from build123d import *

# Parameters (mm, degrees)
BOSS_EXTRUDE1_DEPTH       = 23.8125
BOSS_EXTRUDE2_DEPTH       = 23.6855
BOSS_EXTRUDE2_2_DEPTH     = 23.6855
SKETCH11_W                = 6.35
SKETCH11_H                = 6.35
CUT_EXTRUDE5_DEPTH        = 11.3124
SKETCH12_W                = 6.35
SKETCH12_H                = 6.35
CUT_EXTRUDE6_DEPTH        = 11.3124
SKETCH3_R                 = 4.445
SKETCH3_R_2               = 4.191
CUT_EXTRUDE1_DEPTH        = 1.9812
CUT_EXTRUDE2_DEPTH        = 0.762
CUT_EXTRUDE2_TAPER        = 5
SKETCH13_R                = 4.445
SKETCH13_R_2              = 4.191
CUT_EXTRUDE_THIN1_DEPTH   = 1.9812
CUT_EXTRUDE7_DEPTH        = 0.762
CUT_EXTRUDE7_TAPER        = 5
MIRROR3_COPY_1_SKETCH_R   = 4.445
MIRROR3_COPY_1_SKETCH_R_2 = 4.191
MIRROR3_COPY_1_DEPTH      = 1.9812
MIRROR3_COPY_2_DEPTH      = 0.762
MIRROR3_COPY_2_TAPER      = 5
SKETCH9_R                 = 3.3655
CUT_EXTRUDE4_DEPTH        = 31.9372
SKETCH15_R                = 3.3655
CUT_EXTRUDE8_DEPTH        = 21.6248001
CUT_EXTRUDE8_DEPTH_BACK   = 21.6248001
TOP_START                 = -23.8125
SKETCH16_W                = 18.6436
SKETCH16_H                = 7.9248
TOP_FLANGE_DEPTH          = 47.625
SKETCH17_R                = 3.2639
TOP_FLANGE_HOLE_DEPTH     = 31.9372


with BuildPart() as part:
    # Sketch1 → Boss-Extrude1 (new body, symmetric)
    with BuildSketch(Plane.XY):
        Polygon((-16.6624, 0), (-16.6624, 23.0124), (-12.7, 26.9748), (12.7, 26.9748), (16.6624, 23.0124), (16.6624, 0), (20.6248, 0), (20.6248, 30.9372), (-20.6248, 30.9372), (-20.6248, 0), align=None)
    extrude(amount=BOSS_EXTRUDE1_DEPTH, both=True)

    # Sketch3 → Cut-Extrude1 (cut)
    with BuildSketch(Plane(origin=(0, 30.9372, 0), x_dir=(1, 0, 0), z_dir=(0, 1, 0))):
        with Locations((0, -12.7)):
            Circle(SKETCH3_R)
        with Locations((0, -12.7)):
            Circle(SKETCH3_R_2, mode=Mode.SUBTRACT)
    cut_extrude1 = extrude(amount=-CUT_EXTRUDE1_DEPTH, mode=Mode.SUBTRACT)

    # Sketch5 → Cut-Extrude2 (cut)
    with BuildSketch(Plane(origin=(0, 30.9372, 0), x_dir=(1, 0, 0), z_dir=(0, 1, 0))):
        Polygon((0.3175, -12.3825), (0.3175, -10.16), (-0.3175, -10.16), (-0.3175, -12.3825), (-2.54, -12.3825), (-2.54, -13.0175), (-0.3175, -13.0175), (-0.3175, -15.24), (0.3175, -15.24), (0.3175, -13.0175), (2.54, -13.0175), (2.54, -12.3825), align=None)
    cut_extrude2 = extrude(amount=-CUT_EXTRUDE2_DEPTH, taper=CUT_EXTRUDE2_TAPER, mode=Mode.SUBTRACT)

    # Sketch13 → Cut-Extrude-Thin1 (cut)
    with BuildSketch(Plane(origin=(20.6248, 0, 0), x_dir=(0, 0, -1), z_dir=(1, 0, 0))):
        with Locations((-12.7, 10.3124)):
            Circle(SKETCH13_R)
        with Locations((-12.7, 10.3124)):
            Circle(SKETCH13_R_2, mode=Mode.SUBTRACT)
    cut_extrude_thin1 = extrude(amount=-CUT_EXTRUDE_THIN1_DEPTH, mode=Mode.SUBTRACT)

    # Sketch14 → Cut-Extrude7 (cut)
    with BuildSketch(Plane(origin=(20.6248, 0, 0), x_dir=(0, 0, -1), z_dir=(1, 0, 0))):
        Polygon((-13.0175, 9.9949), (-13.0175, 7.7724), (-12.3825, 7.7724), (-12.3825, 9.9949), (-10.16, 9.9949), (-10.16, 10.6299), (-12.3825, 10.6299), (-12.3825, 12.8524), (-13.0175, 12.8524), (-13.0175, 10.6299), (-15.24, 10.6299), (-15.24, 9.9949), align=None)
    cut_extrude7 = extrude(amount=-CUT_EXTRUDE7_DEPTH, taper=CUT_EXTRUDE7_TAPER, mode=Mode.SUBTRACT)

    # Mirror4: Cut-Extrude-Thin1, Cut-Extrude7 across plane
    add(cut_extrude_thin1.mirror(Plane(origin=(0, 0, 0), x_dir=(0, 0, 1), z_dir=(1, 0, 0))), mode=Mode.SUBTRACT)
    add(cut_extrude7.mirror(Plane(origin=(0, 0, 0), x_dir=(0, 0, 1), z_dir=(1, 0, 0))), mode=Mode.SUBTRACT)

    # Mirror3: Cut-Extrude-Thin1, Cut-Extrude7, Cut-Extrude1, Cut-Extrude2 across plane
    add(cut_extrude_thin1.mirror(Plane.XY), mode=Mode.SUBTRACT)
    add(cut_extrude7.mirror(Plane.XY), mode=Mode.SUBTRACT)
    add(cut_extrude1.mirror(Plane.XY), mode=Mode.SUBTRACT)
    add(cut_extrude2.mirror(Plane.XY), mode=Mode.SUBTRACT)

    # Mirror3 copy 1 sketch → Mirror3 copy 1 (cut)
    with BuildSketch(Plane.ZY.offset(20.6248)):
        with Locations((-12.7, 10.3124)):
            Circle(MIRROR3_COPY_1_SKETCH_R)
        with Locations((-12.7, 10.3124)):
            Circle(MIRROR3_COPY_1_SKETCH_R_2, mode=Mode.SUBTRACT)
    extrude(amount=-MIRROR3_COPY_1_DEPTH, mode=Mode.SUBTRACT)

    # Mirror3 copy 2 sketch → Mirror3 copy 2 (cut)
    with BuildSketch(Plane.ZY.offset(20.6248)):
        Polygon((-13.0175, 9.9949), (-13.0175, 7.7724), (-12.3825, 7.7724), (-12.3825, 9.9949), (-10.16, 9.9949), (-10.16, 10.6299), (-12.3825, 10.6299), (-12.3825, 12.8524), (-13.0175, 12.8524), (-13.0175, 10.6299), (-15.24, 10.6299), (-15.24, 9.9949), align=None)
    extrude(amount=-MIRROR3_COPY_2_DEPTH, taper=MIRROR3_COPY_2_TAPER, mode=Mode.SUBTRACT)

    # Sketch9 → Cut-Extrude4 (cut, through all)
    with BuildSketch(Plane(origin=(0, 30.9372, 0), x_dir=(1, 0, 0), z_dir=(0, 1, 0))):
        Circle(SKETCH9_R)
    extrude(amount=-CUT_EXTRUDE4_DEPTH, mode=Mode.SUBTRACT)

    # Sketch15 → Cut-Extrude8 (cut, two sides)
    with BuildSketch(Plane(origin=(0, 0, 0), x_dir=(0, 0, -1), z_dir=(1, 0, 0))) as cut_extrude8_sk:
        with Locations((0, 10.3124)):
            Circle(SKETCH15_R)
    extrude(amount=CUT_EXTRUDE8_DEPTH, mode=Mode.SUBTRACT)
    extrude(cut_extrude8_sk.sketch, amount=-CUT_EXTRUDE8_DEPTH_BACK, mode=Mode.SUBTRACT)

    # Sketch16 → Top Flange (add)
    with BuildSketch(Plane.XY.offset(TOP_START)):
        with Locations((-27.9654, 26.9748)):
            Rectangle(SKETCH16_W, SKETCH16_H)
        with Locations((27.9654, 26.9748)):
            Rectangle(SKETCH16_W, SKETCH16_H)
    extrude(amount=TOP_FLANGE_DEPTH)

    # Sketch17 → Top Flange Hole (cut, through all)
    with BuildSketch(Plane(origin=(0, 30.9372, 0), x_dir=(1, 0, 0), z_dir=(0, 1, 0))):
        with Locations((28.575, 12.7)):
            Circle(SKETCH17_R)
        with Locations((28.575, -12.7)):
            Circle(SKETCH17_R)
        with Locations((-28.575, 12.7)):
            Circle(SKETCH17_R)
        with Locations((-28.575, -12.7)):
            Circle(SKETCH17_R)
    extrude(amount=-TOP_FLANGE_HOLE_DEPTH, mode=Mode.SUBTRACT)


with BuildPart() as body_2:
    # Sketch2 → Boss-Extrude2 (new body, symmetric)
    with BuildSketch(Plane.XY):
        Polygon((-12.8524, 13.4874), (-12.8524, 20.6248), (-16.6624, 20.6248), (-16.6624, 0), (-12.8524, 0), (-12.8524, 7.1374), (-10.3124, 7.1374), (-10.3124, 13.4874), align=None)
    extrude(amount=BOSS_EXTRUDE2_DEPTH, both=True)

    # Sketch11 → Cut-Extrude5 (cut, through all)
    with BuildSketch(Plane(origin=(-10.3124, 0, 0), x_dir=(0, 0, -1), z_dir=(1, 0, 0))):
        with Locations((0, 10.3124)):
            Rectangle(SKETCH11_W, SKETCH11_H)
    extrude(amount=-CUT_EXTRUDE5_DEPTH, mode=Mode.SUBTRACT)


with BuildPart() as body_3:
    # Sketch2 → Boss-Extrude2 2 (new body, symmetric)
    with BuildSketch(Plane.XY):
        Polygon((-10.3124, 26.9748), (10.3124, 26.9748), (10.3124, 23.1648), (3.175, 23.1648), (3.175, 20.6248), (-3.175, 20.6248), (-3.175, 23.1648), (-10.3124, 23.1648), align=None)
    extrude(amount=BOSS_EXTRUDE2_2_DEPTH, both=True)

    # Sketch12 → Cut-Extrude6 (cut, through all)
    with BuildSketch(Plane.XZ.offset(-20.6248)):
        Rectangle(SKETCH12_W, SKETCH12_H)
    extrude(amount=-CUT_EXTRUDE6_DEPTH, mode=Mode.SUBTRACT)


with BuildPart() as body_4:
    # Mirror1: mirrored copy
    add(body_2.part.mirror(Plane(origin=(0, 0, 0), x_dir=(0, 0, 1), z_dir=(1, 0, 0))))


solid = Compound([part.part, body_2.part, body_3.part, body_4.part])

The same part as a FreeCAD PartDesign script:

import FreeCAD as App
import Part
import Sketcher
Q = App.Units.Quantity

doc = App.newDocument("Part")
body = doc.addObject("PartDesign::Body", "Body")

sketch1 = doc.addObject("Sketcher::SketchObject", "Sketch")
body.addObject(sketch1)
sketch1.AttachmentSupport = (doc.XY_Plane, [""])
sketch1.MapMode = "FlatFace"
sketch1.addGeometry(Part.LineSegment(App.Vector(-16.7, 0, 0), App.Vector(-16.7, 23, 0)), False)
sketch1.addGeometry(Part.LineSegment(App.Vector(-16.7, 23, 0), App.Vector(-12.7, 27, 0)), False)
sketch1.addGeometry(Part.LineSegment(App.Vector(-12.7, 27, 0), App.Vector(12.7, 27, 0)), False)
sketch1.addGeometry(Part.LineSegment(App.Vector(12.7, 27, 0), App.Vector(16.7, 23, 0)), False)
sketch1.addGeometry(Part.LineSegment(App.Vector(16.7, 23, 0), App.Vector(16.7, 0, 0)), False)
sketch1.addGeometry(Part.LineSegment(App.Vector(16.7, 0, 0), App.Vector(20.6, 0, 0)), False)
sketch1.addGeometry(Part.LineSegment(App.Vector(20.6, 0, 0), App.Vector(20.6, 30.9, 0)), False)
sketch1.addGeometry(Part.LineSegment(App.Vector(20.6, 30.9, 0), App.Vector(-20.6, 30.9, 0)), False)
sketch1.addGeometry(Part.LineSegment(App.Vector(-20.6, 30.9, 0), App.Vector(-20.6, 0, 0)), False)
sketch1.addGeometry(Part.LineSegment(App.Vector(-20.6, 0, 0), App.Vector(-16.7, 0, 0)), False)
sketch1.addConstraint(Sketcher.Constraint("Coincident", 0, 2, 1, 1))
sketch1.addConstraint(Sketcher.Constraint("Coincident", 1, 2, 2, 1))
sketch1.addConstraint(Sketcher.Constraint("Coincident", 2, 2, 3, 1))
sketch1.addConstraint(Sketcher.Constraint("Coincident", 3, 2, 4, 1))
sketch1.addConstraint(Sketcher.Constraint("Coincident", 4, 2, 5, 1))
sketch1.addConstraint(Sketcher.Constraint("Coincident", 5, 2, 6, 1))
sketch1.addConstraint(Sketcher.Constraint("Coincident", 6, 2, 7, 1))
sketch1.addConstraint(Sketcher.Constraint("Coincident", 7, 2, 8, 1))
sketch1.addConstraint(Sketcher.Constraint("Coincident", 8, 2, 9, 1))
sketch1.addConstraint(Sketcher.Constraint("Coincident", 9, 2, 0, 1))
sketch1.addConstraint(Sketcher.Constraint("Vertical", 0))
sketch1.addConstraint(Sketcher.Constraint("Horizontal", 2))
sketch1.addConstraint(Sketcher.Constraint("Vertical", 4))
sketch1.addConstraint(Sketcher.Constraint("Horizontal", 5))
sketch1.addConstraint(Sketcher.Constraint("Vertical", 6))
sketch1.addConstraint(Sketcher.Constraint("Horizontal", 7))
sketch1.addConstraint(Sketcher.Constraint("Vertical", 8))
sketch1.addConstraint(Sketcher.Constraint("Horizontal", 9))
sketch1.addConstraint(Sketcher.Constraint("Symmetric", 5, 2, 8, 2, -1, 1))
sketch1.addConstraint(Sketcher.Constraint("Symmetric", 0, 2, 3, 2, -2))
sketch1.addConstraint(Sketcher.Constraint("PointOnObject", 4, 2, -1))
sketch1.addConstraint(Sketcher.Constraint("Perpendicular", 1, 3))
sketch1.addConstraint(Sketcher.Constraint("Equal", 1, 3))
sketch1.addConstraint(Sketcher.Constraint("DistanceX", 2, 1, 2, 2, Q("1 in")))
sketch1.addConstraint(Sketcher.Constraint("DistanceX", 5, 1, 5, 2, Q("0.156 in")))
sketch1.addConstraint(Sketcher.Constraint("DistanceX", 7, 2, 7, 1, Q("1.624 in")))
sketch1.addConstraint(Sketcher.Constraint("DistanceY", 0, 1, 0, 2, Q("0.906 in")))
sketch1.addConstraint(Sketcher.Constraint("DistanceY", 6, 1, 6, 2, Q("1.218 in")))
pad1 = doc.addObject("PartDesign::Pad", "Pad")
body.addObject(pad1)
pad1.Profile = sketch1
pad1.Length = Q("1.875 in")
pad1.Midplane = True

sketch2 = doc.addObject("Sketcher::SketchObject", "Sketch001")
body.addObject(sketch2)
sketch2.AttachmentSupport = (doc.XZ_Plane, [""])
sketch2.MapMode = "FlatFace"
sketch2.AttachmentOffset = App.Placement(App.Vector(0, 0, -1.218 * 25.4), App.Rotation())
sketch2.addGeometry(Part.Circle(App.Vector(0, 12.7, 0), App.Vector(0, 0, 1), 4.4), False)
sketch2.addGeometry(Part.Circle(App.Vector(0, 12.7, 0), App.Vector(0, 0, 1), 4.2), False)
sketch2.addConstraint(Sketcher.Constraint("Coincident", 1, 3, 0, 3))
sketch2.addConstraint(Sketcher.Constraint("PointOnObject", 0, 3, -2))
sketch2.addConstraint(Sketcher.Constraint("Diameter", 0, Q("0.35 in")))
sketch2.addConstraint(Sketcher.Constraint("Diameter", 1, Q("0.33 in")))
sketch2.addConstraint(Sketcher.Constraint("DistanceY", -1, 1, 0, 3, Q("0.5 in")))
pocket1 = doc.addObject("PartDesign::Pocket", "Pocket")
body.addObject(pocket1)
pocket1.Profile = sketch2
pocket1.Length = Q("0.078 in")
pocket1.Reversed = True

sketch3 = doc.addObject("Sketcher::SketchObject", "Sketch002")
body.addObject(sketch3)
sketch3.AttachmentSupport = (doc.XZ_Plane, [""])
sketch3.MapMode = "FlatFace"
sketch3.AttachmentOffset = App.Placement(App.Vector(0, 0, -1.218 * 25.4), App.Rotation())
sketch3.addGeometry(Part.LineSegment(App.Vector(0.3, 12.4, 0), App.Vector(0.3, 10.2, 0)), False)
sketch3.addGeometry(Part.LineSegment(App.Vector(0.3, 10.2, 0), App.Vector(-0.3, 10.2, 0)), False)
sketch3.addGeometry(Part.LineSegment(App.Vector(-0.3, 10.2, 0), App.Vector(-0.3, 12.4, 0)), False)
sketch3.addGeometry(Part.LineSegment(App.Vector(-0.3, 12.4, 0), App.Vector(-2.5, 12.4, 0)), False)
sketch3.addGeometry(Part.LineSegment(App.Vector(-2.5, 12.4, 0), App.Vector(-2.5, 13, 0)), False)
sketch3.addGeometry(Part.LineSegment(App.Vector(-2.5, 13, 0), App.Vector(-0.3, 13, 0)), False)
sketch3.addGeometry(Part.LineSegment(App.Vector(-0.3, 13, 0), App.Vector(-0.3, 15.2, 0)), False)
sketch3.addGeometry(Part.LineSegment(App.Vector(-0.3, 15.2, 0), App.Vector(0.3, 15.2, 0)), False)
sketch3.addGeometry(Part.LineSegment(App.Vector(0.3, 15.2, 0), App.Vector(0.3, 13, 0)), False)
sketch3.addGeometry(Part.LineSegment(App.Vector(0.3, 13, 0), App.Vector(2.5, 13, 0)), False)
sketch3.addGeometry(Part.LineSegment(App.Vector(2.5, 13, 0), App.Vector(2.5, 12.4, 0)), False)
sketch3.addGeometry(Part.LineSegment(App.Vector(2.5, 12.4, 0), App.Vector(0.3, 12.4, 0)), False)
sketch3.addConstraint(Sketcher.Constraint("Coincident", 0, 2, 1, 1))
sketch3.addConstraint(Sketcher.Constraint("Coincident", 1, 2, 2, 1))
sketch3.addConstraint(Sketcher.Constraint("Coincident", 2, 2, 3, 1))
sketch3.addConstraint(Sketcher.Constraint("Coincident", 3, 2, 4, 1))
sketch3.addConstraint(Sketcher.Constraint("Coincident", 4, 2, 5, 1))
sketch3.addConstraint(Sketcher.Constraint("Coincident", 5, 2, 6, 1))
sketch3.addConstraint(Sketcher.Constraint("Coincident", 6, 2, 7, 1))
sketch3.addConstraint(Sketcher.Constraint("Coincident", 7, 2, 8, 1))
sketch3.addConstraint(Sketcher.Constraint("Coincident", 8, 2, 9, 1))
sketch3.addConstraint(Sketcher.Constraint("Coincident", 9, 2, 10, 1))
sketch3.addConstraint(Sketcher.Constraint("Coincident", 10, 2, 11, 1))
sketch3.addConstraint(Sketcher.Constraint("Coincident", 11, 2, 0, 1))
sketch3.addConstraint(Sketcher.Constraint("Vertical", 0))
sketch3.addConstraint(Sketcher.Constraint("Horizontal", 1))
sketch3.addConstraint(Sketcher.Constraint("Vertical", 2))
sketch3.addConstraint(Sketcher.Constraint("Horizontal", 3))
sketch3.addConstraint(Sketcher.Constraint("Vertical", 4))
sketch3.addConstraint(Sketcher.Constraint("Horizontal", 5))
sketch3.addConstraint(Sketcher.Constraint("Vertical", 6))
sketch3.addConstraint(Sketcher.Constraint("Horizontal", 7))
sketch3.addConstraint(Sketcher.Constraint("Vertical", 8))
sketch3.addConstraint(Sketcher.Constraint("Horizontal", 9))
sketch3.addConstraint(Sketcher.Constraint("Vertical", 10))
sketch3.addConstraint(Sketcher.Constraint("Horizontal", 11))
sketch3.addConstraint(Sketcher.Constraint("Symmetric", 5, 2, 8, 2, -2))
sketch3.addConstraint(Sketcher.Constraint("Symmetric", 3, 2, 10, 2, -2))
sketch3.addConstraint(Sketcher.Constraint("Vertical", 2, 2, 5, 2))
sketch3.addConstraint(Sketcher.Constraint("Vertical", 0, 2, 7, 2))
sketch3.addConstraint(Sketcher.Constraint("Equal", 11, 0))
sketch3.addConstraint(Sketcher.Constraint("Equal", 7, 4))
sketch3.addConstraint(Sketcher.Constraint("Equal", 2, 6))
sketch3.addConstraint(Sketcher.Constraint("DistanceY", -1, 1, 0, 2, Q("0.4 in")))
sketch3.addConstraint(Sketcher.Constraint("DistanceX", 3, 2, -1, 1, Q("0.1 in")))
sketch3.addConstraint(Sketcher.Constraint("DistanceX", 1, 2, 1, 1, Q("0.025 in")))
pocket2 = doc.addObject("PartDesign::Pocket", "Pocket001")
body.addObject(pocket2)
pocket2.Profile = sketch3
pocket2.Length = Q("0.03 in")
pocket2.Reversed = True
pocket2.TaperAngle = -5

sketch4 = doc.addObject("Sketcher::SketchObject", "Sketch003")
body.addObject(sketch4)
sketch4.AttachmentSupport = (doc.YZ_Plane, [""])
sketch4.MapMode = "FlatFace"
sketch4.AttachmentOffset = App.Placement(App.Vector(0, 0, 0.812 * 25.4), App.Rotation())
sketch4.addGeometry(Part.Circle(App.Vector(10.3, 12.7, 0), App.Vector(0, 0, 1), 4.4), False)
sketch4.addGeometry(Part.Circle(App.Vector(10.3, 12.7, 0), App.Vector(0, 0, 1), 4.2), False)
sketch4.addConstraint(Sketcher.Constraint("Coincident", 1, 3, 0, 3))
sketch4.addConstraint(Sketcher.Constraint("Diameter", 0, Q("0.35 in")))
sketch4.addConstraint(Sketcher.Constraint("Diameter", 1, Q("0.33 in")))
sketch4.addConstraint(Sketcher.Constraint("DistanceY", -1, 1, 0, 3, Q("0.5 in")))
sketch4.addConstraint(Sketcher.Constraint("DistanceX", -1, 1, 0, 3, Q("0.406 in")))
pocket3 = doc.addObject("PartDesign::Pocket", "Pocket002")
body.addObject(pocket3)
pocket3.Profile = sketch4
pocket3.Length = Q("0.078 in")

sketch5 = doc.addObject("Sketcher::SketchObject", "Sketch004")
body.addObject(sketch5)
sketch5.AttachmentSupport = (doc.YZ_Plane, [""])
sketch5.MapMode = "FlatFace"
sketch5.AttachmentOffset = App.Placement(App.Vector(0, 0, 0.812 * 25.4), App.Rotation())
sketch5.addGeometry(Part.LineSegment(App.Vector(10, 13, 0), App.Vector(7.8, 13, 0)), False)
sketch5.addGeometry(Part.LineSegment(App.Vector(7.8, 13, 0), App.Vector(7.8, 12.4, 0)), False)
sketch5.addGeometry(Part.LineSegment(App.Vector(7.8, 12.4, 0), App.Vector(10, 12.4, 0)), False)
sketch5.addGeometry(Part.LineSegment(App.Vector(10, 12.4, 0), App.Vector(10, 10.2, 0)), False)
sketch5.addGeometry(Part.LineSegment(App.Vector(10, 10.2, 0), App.Vector(10.6, 10.2, 0)), False)
sketch5.addGeometry(Part.LineSegment(App.Vector(10.6, 10.2, 0), App.Vector(10.6, 12.4, 0)), False)
sketch5.addGeometry(Part.LineSegment(App.Vector(10.6, 12.4, 0), App.Vector(12.9, 12.4, 0)), False)
sketch5.addGeometry(Part.LineSegment(App.Vector(12.9, 12.4, 0), App.Vector(12.9, 13, 0)), False)
sketch5.addGeometry(Part.LineSegment(App.Vector(12.9, 13, 0), App.Vector(10.6, 13, 0)), False)
sketch5.addGeometry(Part.LineSegment(App.Vector(10.6, 13, 0), App.Vector(10.6, 15.2, 0)), False)
sketch5.addGeometry(Part.LineSegment(App.Vector(10.6, 15.2, 0), App.Vector(10, 15.2, 0)), False)
sketch5.addGeometry(Part.LineSegment(App.Vector(10, 15.2, 0), App.Vector(10, 13, 0)), False)
sketch5.addConstraint(Sketcher.Constraint("Coincident", 0, 2, 1, 1))
sketch5.addConstraint(Sketcher.Constraint("Coincident", 1, 2, 2, 1))
sketch5.addConstraint(Sketcher.Constraint("Coincident", 2, 2, 3, 1))
sketch5.addConstraint(Sketcher.Constraint("Coincident", 3, 2, 4, 1))
sketch5.addConstraint(Sketcher.Constraint("Coincident", 4, 2, 5, 1))
sketch5.addConstraint(Sketcher.Constraint("Coincident", 5, 2, 6, 1))
sketch5.addConstraint(Sketcher.Constraint("Coincident", 6, 2, 7, 1))
sketch5.addConstraint(Sketcher.Constraint("Coincident", 7, 2, 8, 1))
sketch5.addConstraint(Sketcher.Constraint("Coincident", 8, 2, 9, 1))
sketch5.addConstraint(Sketcher.Constraint("Coincident", 9, 2, 10, 1))
sketch5.addConstraint(Sketcher.Constraint("Coincident", 10, 2, 11, 1))
sketch5.addConstraint(Sketcher.Constraint("Coincident", 11, 2, 0, 1))
sketch5.addConstraint(Sketcher.Constraint("Horizontal", 0))
sketch5.addConstraint(Sketcher.Constraint("Vertical", 1))
sketch5.addConstraint(Sketcher.Constraint("Horizontal", 2))
sketch5.addConstraint(Sketcher.Constraint("Vertical", 3))
sketch5.addConstraint(Sketcher.Constraint("Horizontal", 4))
sketch5.addConstraint(Sketcher.Constraint("Vertical", 5))
sketch5.addConstraint(Sketcher.Constraint("Horizontal", 6))
sketch5.addConstraint(Sketcher.Constraint("Vertical", 7))
sketch5.addConstraint(Sketcher.Constraint("Horizontal", 8))
sketch5.addConstraint(Sketcher.Constraint("Vertical", 9))
sketch5.addConstraint(Sketcher.Constraint("Horizontal", 10))
sketch5.addConstraint(Sketcher.Constraint("Vertical", 11))
sketch5.addConstraint(Sketcher.Constraint("Horizontal", 2, 2, 5, 2))
sketch5.addConstraint(Sketcher.Constraint("Horizontal", 0, 2, 7, 2))
sketch5.addConstraint(Sketcher.Constraint("Vertical", 5, 2, 8, 2))
sketch5.addConstraint(Sketcher.Constraint("Vertical", 3, 2, 10, 2))
sketch5.addConstraint(Sketcher.Constraint("Equal", 2, 6))
sketch5.addConstraint(Sketcher.Constraint("Equal", 10, 1))
sketch5.addConstraint(Sketcher.Constraint("Equal", 8, 3))
sketch5.addConstraint(Sketcher.Constraint("Equal", 5, 9))
sketch5.addConstraint(Sketcher.Constraint("DistanceY", -1, 1, 3, 2, Q("0.4 in")))
sketch5.addConstraint(Sketcher.Constraint("DistanceY", -1, 1, 9, 2, Q("0.6 in")))
sketch5.addConstraint(Sketcher.Constraint("DistanceX", 4, 1, 4, 2, Q("0.025 in")))
sketch5.addConstraint(Sketcher.Constraint("DistanceX", -1, 1, 0, 2, Q("0.306 in")))
pocket4 = doc.addObject("PartDesign::Pocket", "Pocket003")
body.addObject(pocket4)
pocket4.Profile = sketch5
pocket4.Length = Q("0.03 in")
pocket4.TaperAngle = -5
doc.recompute()

mirrored = doc.addObject("PartDesign::Mirrored", "Mirrored")
body.addObject(mirrored)
mirrored.Originals = [pocket3, pocket4]
mirrored.MirrorPlane = (doc.YZ_Plane, [""])
body.Tip = mirrored
doc.recompute()

mirrored2 = doc.addObject("PartDesign::Mirrored", "Mirrored001")
body.addObject(mirrored2)
mirrored2.Originals = [pocket3, pocket4, pocket1, pocket2]
mirrored2.MirrorPlane = (doc.XY_Plane, [""])
body.Tip = mirrored2

sketch6 = doc.addObject("Sketcher::SketchObject", "Sketch005")
body.addObject(sketch6)
sketch6.AttachmentSupport = (doc.YZ_Plane, [""])
sketch6.MapMode = "FlatFace"
sketch6.AttachmentOffset = App.Placement(App.Vector(0, 0, -0.812 * 25.4), App.Rotation())
sketch6.addGeometry(Part.Circle(App.Vector(10.3, -12.7, 0), App.Vector(0, 0, 1), 4.4), False)
sketch6.addGeometry(Part.Circle(App.Vector(10.3, -12.7, 0), App.Vector(0, 0, 1), 4.2), False)
sketch6.addConstraint(Sketcher.Constraint("Coincident", 1, 3, 0, 3))
sketch6.addConstraint(Sketcher.Constraint("Diameter", 0, Q("0.35 in")))
sketch6.addConstraint(Sketcher.Constraint("Diameter", 1, Q("0.33 in")))
sketch6.addConstraint(Sketcher.Constraint("DistanceY", 0, 3, -1, 1, Q("0.5 in")))
sketch6.addConstraint(Sketcher.Constraint("DistanceX", -1, 1, 0, 3, Q("0.406 in")))
pocket5 = doc.addObject("PartDesign::Pocket", "Pocket004")
body.addObject(pocket5)
pocket5.Profile = sketch6
pocket5.Length = Q("0.078 in")
pocket5.Reversed = True

sketch7 = doc.addObject("Sketcher::SketchObject", "Sketch006")
body.addObject(sketch7)
sketch7.AttachmentSupport = (doc.YZ_Plane, [""])
sketch7.MapMode = "FlatFace"
sketch7.AttachmentOffset = App.Placement(App.Vector(0, 0, -0.812 * 25.4), App.Rotation())
sketch7.addGeometry(Part.LineSegment(App.Vector(10, -13, 0), App.Vector(7.8, -13, 0)), False)
sketch7.addGeometry(Part.LineSegment(App.Vector(7.8, -13, 0), App.Vector(7.8, -12.4, 0)), False)
sketch7.addGeometry(Part.LineSegment(App.Vector(7.8, -12.4, 0), App.Vector(10, -12.4, 0)), False)
sketch7.addGeometry(Part.LineSegment(App.Vector(10, -12.4, 0), App.Vector(10, -10.2, 0)), False)
sketch7.addGeometry(Part.LineSegment(App.Vector(10, -10.2, 0), App.Vector(10.6, -10.2, 0)), False)
sketch7.addGeometry(Part.LineSegment(App.Vector(10.6, -10.2, 0), App.Vector(10.6, -12.4, 0)), False)
sketch7.addGeometry(Part.LineSegment(App.Vector(10.6, -12.4, 0), App.Vector(12.9, -12.4, 0)), False)
sketch7.addGeometry(Part.LineSegment(App.Vector(12.9, -12.4, 0), App.Vector(12.9, -13, 0)), False)
sketch7.addGeometry(Part.LineSegment(App.Vector(12.9, -13, 0), App.Vector(10.6, -13, 0)), False)
sketch7.addGeometry(Part.LineSegment(App.Vector(10.6, -13, 0), App.Vector(10.6, -15.2, 0)), False)
sketch7.addGeometry(Part.LineSegment(App.Vector(10.6, -15.2, 0), App.Vector(10, -15.2, 0)), False)
sketch7.addGeometry(Part.LineSegment(App.Vector(10, -15.2, 0), App.Vector(10, -13, 0)), False)
sketch7.addConstraint(Sketcher.Constraint("Coincident", 0, 2, 1, 1))
sketch7.addConstraint(Sketcher.Constraint("Coincident", 1, 2, 2, 1))
sketch7.addConstraint(Sketcher.Constraint("Coincident", 2, 2, 3, 1))
sketch7.addConstraint(Sketcher.Constraint("Coincident", 3, 2, 4, 1))
sketch7.addConstraint(Sketcher.Constraint("Coincident", 4, 2, 5, 1))
sketch7.addConstraint(Sketcher.Constraint("Coincident", 5, 2, 6, 1))
sketch7.addConstraint(Sketcher.Constraint("Coincident", 6, 2, 7, 1))
sketch7.addConstraint(Sketcher.Constraint("Coincident", 7, 2, 8, 1))
sketch7.addConstraint(Sketcher.Constraint("Coincident", 8, 2, 9, 1))
sketch7.addConstraint(Sketcher.Constraint("Coincident", 9, 2, 10, 1))
sketch7.addConstraint(Sketcher.Constraint("Coincident", 10, 2, 11, 1))
sketch7.addConstraint(Sketcher.Constraint("Coincident", 11, 2, 0, 1))
sketch7.addConstraint(Sketcher.Constraint("Horizontal", 0))
sketch7.addConstraint(Sketcher.Constraint("Vertical", 1))
sketch7.addConstraint(Sketcher.Constraint("Horizontal", 2))
sketch7.addConstraint(Sketcher.Constraint("Vertical", 3))
sketch7.addConstraint(Sketcher.Constraint("Horizontal", 4))
sketch7.addConstraint(Sketcher.Constraint("Vertical", 5))
sketch7.addConstraint(Sketcher.Constraint("Horizontal", 6))
sketch7.addConstraint(Sketcher.Constraint("Vertical", 7))
sketch7.addConstraint(Sketcher.Constraint("Horizontal", 8))
sketch7.addConstraint(Sketcher.Constraint("Vertical", 9))
sketch7.addConstraint(Sketcher.Constraint("Horizontal", 10))
sketch7.addConstraint(Sketcher.Constraint("Vertical", 11))
sketch7.addConstraint(Sketcher.Constraint("Horizontal", 2, 2, 5, 2))
sketch7.addConstraint(Sketcher.Constraint("Horizontal", 0, 2, 7, 2))
sketch7.addConstraint(Sketcher.Constraint("Vertical", 5, 2, 8, 2))
sketch7.addConstraint(Sketcher.Constraint("Vertical", 3, 2, 10, 2))
sketch7.addConstraint(Sketcher.Constraint("Equal", 2, 6))
sketch7.addConstraint(Sketcher.Constraint("Equal", 10, 1))
sketch7.addConstraint(Sketcher.Constraint("Equal", 8, 3))
sketch7.addConstraint(Sketcher.Constraint("Equal", 5, 9))
sketch7.addConstraint(Sketcher.Constraint("DistanceY", 3, 2, -1, 1, Q("0.4 in")))
sketch7.addConstraint(Sketcher.Constraint("DistanceY", 9, 2, -1, 1, Q("0.6 in")))
sketch7.addConstraint(Sketcher.Constraint("DistanceX", 4, 1, 4, 2, Q("0.025 in")))
sketch7.addConstraint(Sketcher.Constraint("DistanceX", -1, 1, 0, 2, Q("0.306 in")))
pocket6 = doc.addObject("PartDesign::Pocket", "Pocket005")
body.addObject(pocket6)
pocket6.Profile = sketch7
pocket6.Length = Q("0.03 in")
pocket6.Reversed = True
pocket6.TaperAngle = -5

sketch8 = doc.addObject("Sketcher::SketchObject", "Sketch007")
body.addObject(sketch8)
sketch8.AttachmentSupport = (doc.XZ_Plane, [""])
sketch8.MapMode = "FlatFace"
sketch8.AttachmentOffset = App.Placement(App.Vector(0, 0, -1.218 * 25.4), App.Rotation())
sketch8.addGeometry(Part.Circle(App.Vector(0, 0, 0), App.Vector(0, 0, 1), 3.4), False)
sketch8.addConstraint(Sketcher.Constraint("Coincident", 0, 3, -1, 1))
sketch8.addConstraint(Sketcher.Constraint("Diameter", 0, Q("0.265 in")))
pocket7 = doc.addObject("PartDesign::Pocket", "Pocket006")
body.addObject(pocket7)
pocket7.Profile = sketch8
pocket7.Type = "ThroughAll"
pocket7.Reversed = True

sketch9 = doc.addObject("Sketcher::SketchObject", "Sketch008")
body.addObject(sketch9)
sketch9.AttachmentSupport = (doc.YZ_Plane, [""])
sketch9.MapMode = "FlatFace"
sketch9.addGeometry(Part.Circle(App.Vector(10.3, 0, 0), App.Vector(0, 0, 1), 3.4), False)
sketch9.addConstraint(Sketcher.Constraint("PointOnObject", 0, 3, -1))
sketch9.addConstraint(Sketcher.Constraint("Diameter", 0, Q("0.265 in")))
sketch9.addConstraint(Sketcher.Constraint("DistanceX", -1, 1, 0, 3, Q("0.406 in")))
pocket8 = doc.addObject("PartDesign::Pocket", "Pocket007")
body.addObject(pocket8)
pocket8.Profile = sketch9
pocket8.Type = "ThroughAll"
pocket8.Midplane = True

sketch10 = doc.addObject("Sketcher::SketchObject", "Sketch009")
body.addObject(sketch10)
sketch10.AttachmentSupport = (doc.XY_Plane, [""])
sketch10.MapMode = "FlatFace"
sketch10.AttachmentOffset = App.Placement(App.Vector(0, 0, -0.9375 * 25.4), App.Rotation())
sketch10.addGeometry(Part.LineSegment(App.Vector(-37, 31, 0), App.Vector(-37, 23, 0)), False)
sketch10.addGeometry(Part.LineSegment(App.Vector(-37, 23, 0), App.Vector(-19, 23, 0)), False)
sketch10.addGeometry(Part.LineSegment(App.Vector(-19, 23, 0), App.Vector(-19, 31, 0)), False)
sketch10.addGeometry(Part.LineSegment(App.Vector(-19, 31, 0), App.Vector(-37, 31, 0)), False)
sketch10.addGeometry(Part.LineSegment(App.Vector(19, 31, 0), App.Vector(19, 23, 0)), False)
sketch10.addGeometry(Part.LineSegment(App.Vector(19, 23, 0), App.Vector(37, 23, 0)), False)
sketch10.addGeometry(Part.LineSegment(App.Vector(37, 23, 0), App.Vector(37, 31, 0)), False)
sketch10.addGeometry(Part.LineSegment(App.Vector(37, 31, 0), App.Vector(19, 31, 0)), False)
sketch10.addConstraint(Sketcher.Constraint("Coincident", 0, 2, 1, 1))
sketch10.addConstraint(Sketcher.Constraint("Coincident", 1, 2, 2, 1))
sketch10.addConstraint(Sketcher.Constraint("Coincident", 2, 2, 3, 1))
sketch10.addConstraint(Sketcher.Constraint("Coincident", 3, 2, 0, 1))
sketch10.addConstraint(Sketcher.Constraint("Coincident", 4, 2, 5, 1))
sketch10.addConstraint(Sketcher.Constraint("Coincident", 5, 2, 6, 1))
sketch10.addConstraint(Sketcher.Constraint("Coincident", 6, 2, 7, 1))
sketch10.addConstraint(Sketcher.Constraint("Coincident", 7, 2, 4, 1))
sketch10.addConstraint(Sketcher.Constraint("Vertical", 0))
sketch10.addConstraint(Sketcher.Constraint("Horizontal", 1))
sketch10.addConstraint(Sketcher.Constraint("Vertical", 2))
sketch10.addConstraint(Sketcher.Constraint("Horizontal", 3))
sketch10.addConstraint(Sketcher.Constraint("Vertical", 4))
sketch10.addConstraint(Sketcher.Constraint("Horizontal", 5))
sketch10.addConstraint(Sketcher.Constraint("Vertical", 6))
sketch10.addConstraint(Sketcher.Constraint("Horizontal", 7))
sketch10.addConstraint(Sketcher.Constraint("Symmetric", 1, 2, 4, 2, -2))
sketch10.addConstraint(Sketcher.Constraint("Symmetric", 3, 2, 6, 2, -2))
sketch10.addConstraint(Sketcher.Constraint("DistanceX", 1, 1, 1, 2, Q("0.734 in")))
sketch10.addConstraint(Sketcher.Constraint("DistanceY", 0, 2, 0, 1, Q("0.312 in")))
sketch10.addConstraint(Sketcher.Constraint("DistanceX", 0, 2, -1, 1, Q("1.468 in")))
sketch10.addConstraint(Sketcher.Constraint("DistanceY", -1, 1, 0, 2, Q("0.906 in")))
pad2 = doc.addObject("PartDesign::Pad", "Pad001")
body.addObject(pad2)
pad2.Profile = sketch10
pad2.Length = Q("1.875 in")

sketch11 = doc.addObject("Sketcher::SketchObject", "Sketch010")
body.addObject(sketch11)
sketch11.AttachmentSupport = (doc.XZ_Plane, [""])
sketch11.MapMode = "FlatFace"
sketch11.AttachmentOffset = App.Placement(App.Vector(0, 0, -1.218 * 25.4), App.Rotation())
sketch11.addGeometry(Part.Circle(App.Vector(28.6, -12.7, 0), App.Vector(0, 0, 1), 3.3), False)
sketch11.addGeometry(Part.Circle(App.Vector(28.6, 12.7, 0), App.Vector(0, 0, 1), 3.3), False)
sketch11.addGeometry(Part.Circle(App.Vector(-28.6, -12.7, 0), App.Vector(0, 0, 1), 3.3), False)
sketch11.addGeometry(Part.Circle(App.Vector(-28.6, 12.7, 0), App.Vector(0, 0, 1), 3.3), False)
sketch11.addConstraint(Sketcher.Constraint("Equal", 0, 1))
sketch11.addConstraint(Sketcher.Constraint("Equal", 1, 2))
sketch11.addConstraint(Sketcher.Constraint("Equal", 2, 3))
sketch11.addConstraint(Sketcher.Constraint("Symmetric", 1, 3, 2, 3, -1, 1))
sketch11.addConstraint(Sketcher.Constraint("Symmetric", 0, 3, 3, 3, -1, 1))
sketch11.addConstraint(Sketcher.Constraint("Symmetric", 0, 3, 2, 3, -2))
sketch11.addConstraint(Sketcher.Constraint("Diameter", 0, Q("0.257 in")))
sketch11.addConstraint(Sketcher.Constraint("DistanceY", 0, 3, 1, 3, Q("1 in")))
sketch11.addConstraint(Sketcher.Constraint("DistanceX", 2, 3, 0, 3, Q("2.25 in")))
pocket9 = doc.addObject("PartDesign::Pocket", "Pocket008")
body.addObject(pocket9)
pocket9.Profile = sketch11
pocket9.Type = "ThroughAll"
pocket9.Reversed = True
body2 = doc.addObject("PartDesign::Body", "Body001")

sketch12 = doc.addObject("Sketcher::SketchObject", "Sketch011")
body2.addObject(sketch12)
sketch12.AttachmentSupport = (doc.getObject("XY_Plane001"), [""])
sketch12.MapMode = "FlatFace"
sketch12.addGeometry(Part.LineSegment(App.Vector(-12.9, 13.5, 0), App.Vector(-12.9, 20.6, 0)), False)
sketch12.addGeometry(Part.LineSegment(App.Vector(-12.9, 20.6, 0), App.Vector(-16.7, 20.6, 0)), False)
sketch12.addGeometry(Part.LineSegment(App.Vector(-16.7, 20.6, 0), App.Vector(-16.7, 0, 0)), False)
sketch12.addGeometry(Part.LineSegment(App.Vector(-16.7, 0, 0), App.Vector(-12.9, 0, 0)), False)
sketch12.addGeometry(Part.LineSegment(App.Vector(-12.9, 0, 0), App.Vector(-12.9, 7.1, 0)), False)
sketch12.addGeometry(Part.LineSegment(App.Vector(-12.9, 7.1, 0), App.Vector(-10.3, 7.1, 0)), False)
sketch12.addGeometry(Part.LineSegment(App.Vector(-10.3, 7.1, 0), App.Vector(-10.3, 13.5, 0)), False)
sketch12.addGeometry(Part.LineSegment(App.Vector(-10.3, 13.5, 0), App.Vector(-12.9, 13.5, 0)), False)
sketch12.addConstraint(Sketcher.Constraint("Coincident", 0, 2, 1, 1))
sketch12.addConstraint(Sketcher.Constraint("Coincident", 1, 2, 2, 1))
sketch12.addConstraint(Sketcher.Constraint("Coincident", 2, 2, 3, 1))
sketch12.addConstraint(Sketcher.Constraint("Coincident", 3, 2, 4, 1))
sketch12.addConstraint(Sketcher.Constraint("Coincident", 4, 2, 5, 1))
sketch12.addConstraint(Sketcher.Constraint("Coincident", 5, 2, 6, 1))
sketch12.addConstraint(Sketcher.Constraint("Coincident", 6, 2, 7, 1))
sketch12.addConstraint(Sketcher.Constraint("Coincident", 7, 2, 0, 1))
sketch12.addConstraint(Sketcher.Constraint("Vertical", 0))
sketch12.addConstraint(Sketcher.Constraint("Horizontal", 1))
sketch12.addConstraint(Sketcher.Constraint("Vertical", 2))
sketch12.addConstraint(Sketcher.Constraint("Horizontal", 3))
sketch12.addConstraint(Sketcher.Constraint("Vertical", 4))
sketch12.addConstraint(Sketcher.Constraint("Horizontal", 5))
sketch12.addConstraint(Sketcher.Constraint("Vertical", 6))
sketch12.addConstraint(Sketcher.Constraint("Horizontal", 7))
sketch12.addConstraint(Sketcher.Constraint("PointOnObject", 2, 2, -1))
sketch12.addConstraint(Sketcher.Constraint("Vertical", 0, 2, 3, 2))
sketch12.addConstraint(Sketcher.Constraint("Equal", 0, 4))
sketch12.addConstraint(Sketcher.Constraint("DistanceX", 5, 1, 5, 2, Q("0.1 in")))
sketch12.addConstraint(Sketcher.Constraint("DistanceX", 1, 2, 1, 1, Q("0.15 in")))
sketch12.addConstraint(Sketcher.Constraint("DistanceY", 6, 1, 6, 2, Q("0.25 in")))
sketch12.addConstraint(Sketcher.Constraint("DistanceY", 0, 1, 0, 2, Q("0.281 in")))
sketch12.addConstraint(Sketcher.Constraint("DistanceX", 0, 2, -1, 1, Q("0.506 in")))
pad3 = doc.addObject("PartDesign::Pad", "Pad002")
body2.addObject(pad3)
pad3.Profile = sketch12
pad3.Length = Q("1.865 in")
pad3.Midplane = True

sketch13 = doc.addObject("Sketcher::SketchObject", "Sketch012")
body2.addObject(sketch13)
sketch13.AttachmentSupport = (doc.getObject("YZ_Plane001"), [""])
sketch13.MapMode = "FlatFace"
sketch13.AttachmentOffset = App.Placement(App.Vector(0, 0, -0.406 * 25.4), App.Rotation())
sketch13.addGeometry(Part.LineSegment(App.Vector(13, 3, 0), App.Vector(7, 3, 0)), False)
sketch13.addGeometry(Part.LineSegment(App.Vector(7, 3, 0), App.Vector(7, -3, 0)), False)
sketch13.addGeometry(Part.LineSegment(App.Vector(7, -3, 0), App.Vector(13, -3, 0)), False)
sketch13.addGeometry(Part.LineSegment(App.Vector(13, -3, 0), App.Vector(13, 3, 0)), False)
sketch13.addConstraint(Sketcher.Constraint("Coincident", 0, 2, 1, 1))
sketch13.addConstraint(Sketcher.Constraint("Coincident", 1, 2, 2, 1))
sketch13.addConstraint(Sketcher.Constraint("Coincident", 2, 2, 3, 1))
sketch13.addConstraint(Sketcher.Constraint("Coincident", 3, 2, 0, 1))
sketch13.addConstraint(Sketcher.Constraint("Horizontal", 0))
sketch13.addConstraint(Sketcher.Constraint("Vertical", 1))
sketch13.addConstraint(Sketcher.Constraint("Horizontal", 2))
sketch13.addConstraint(Sketcher.Constraint("Vertical", 3))
sketch13.addConstraint(Sketcher.Constraint("Equal", 2, 1))
sketch13.addConstraint(Sketcher.Constraint("DistanceX", 0, 2, 0, 1, Q("0.25 in")))
sketch13.addConstraint(Sketcher.Constraint("DistanceX", -1, 1, 0, 2, Q("0.281 in")))
sketch13.addConstraint(Sketcher.Constraint("DistanceY", -1, 1, 0, 2, Q("0.125 in")))
pocket10 = doc.addObject("PartDesign::Pocket", "Pocket009")
body2.addObject(pocket10)
pocket10.Profile = sketch13
pocket10.Type = "ThroughAll"
body3 = doc.addObject("PartDesign::Body", "Body002")

sketch14 = doc.addObject("Sketcher::SketchObject", "Sketch013")
body3.addObject(sketch14)
sketch14.AttachmentSupport = (doc.getObject("XY_Plane002"), [""])
sketch14.MapMode = "FlatFace"
sketch14.addGeometry(Part.LineSegment(App.Vector(10.3, 27, 0), App.Vector(-10.3, 27, 0)), False)
sketch14.addGeometry(Part.LineSegment(App.Vector(-10.3, 27, 0), App.Vector(-10.3, 23.2, 0)), False)
sketch14.addGeometry(Part.LineSegment(App.Vector(-10.3, 23.2, 0), App.Vector(-3.2, 23.2, 0)), False)
sketch14.addGeometry(Part.LineSegment(App.Vector(-3.2, 23.2, 0), App.Vector(-3.2, 20.6, 0)), False)
sketch14.addGeometry(Part.LineSegment(App.Vector(-3.2, 20.6, 0), App.Vector(3.2, 20.6, 0)), False)
sketch14.addGeometry(Part.LineSegment(App.Vector(3.2, 20.6, 0), App.Vector(3.2, 23.2, 0)), False)
sketch14.addGeometry(Part.LineSegment(App.Vector(3.2, 23.2, 0), App.Vector(10.3, 23.2, 0)), False)
sketch14.addGeometry(Part.LineSegment(App.Vector(10.3, 23.2, 0), App.Vector(10.3, 27, 0)), False)
sketch14.addConstraint(Sketcher.Constraint("Coincident", 0, 2, 1, 1))
sketch14.addConstraint(Sketcher.Constraint("Coincident", 1, 2, 2, 1))
sketch14.addConstraint(Sketcher.Constraint("Coincident", 2, 2, 3, 1))
sketch14.addConstraint(Sketcher.Constraint("Coincident", 3, 2, 4, 1))
sketch14.addConstraint(Sketcher.Constraint("Coincident", 4, 2, 5, 1))
sketch14.addConstraint(Sketcher.Constraint("Coincident", 5, 2, 6, 1))
sketch14.addConstraint(Sketcher.Constraint("Coincident", 6, 2, 7, 1))
sketch14.addConstraint(Sketcher.Constraint("Coincident", 7, 2, 0, 1))
sketch14.addConstraint(Sketcher.Constraint("Horizontal", 0))
sketch14.addConstraint(Sketcher.Constraint("Vertical", 1))
sketch14.addConstraint(Sketcher.Constraint("Horizontal", 2))
sketch14.addConstraint(Sketcher.Constraint("Vertical", 3))
sketch14.addConstraint(Sketcher.Constraint("Horizontal", 4))
sketch14.addConstraint(Sketcher.Constraint("Vertical", 5))
sketch14.addConstraint(Sketcher.Constraint("Horizontal", 6))
sketch14.addConstraint(Sketcher.Constraint("Vertical", 7))
sketch14.addConstraint(Sketcher.Constraint("Symmetric", 2, 2, 5, 2, -2))
sketch14.addConstraint(Sketcher.Constraint("Equal", 2, 6))
sketch14.addConstraint(Sketcher.Constraint("DistanceY", 3, 2, 3, 1, Q("0.1 in")))
sketch14.addConstraint(Sketcher.Constraint("DistanceX", 4, 1, 4, 2, Q("0.25 in")))
sketch14.addConstraint(Sketcher.Constraint("DistanceY", 1, 2, 1, 1, Q("0.15 in")))
sketch14.addConstraint(Sketcher.Constraint("DistanceX", 0, 2, 0, 1, Q("0.812 in")))
sketch14.addConstraint(Sketcher.Constraint("DistanceY", -1, 1, 0, 2, Q("1.062 in")))
pad4 = doc.addObject("PartDesign::Pad", "Pad003")
body3.addObject(pad4)
pad4.Profile = sketch14
pad4.Length = Q("1.865 in")
pad4.Midplane = True

sketch15 = doc.addObject("Sketcher::SketchObject", "Sketch014")
body3.addObject(sketch15)
sketch15.AttachmentSupport = (doc.getObject("XZ_Plane002"), [""])
sketch15.MapMode = "FlatFace"
sketch15.AttachmentOffset = App.Placement(App.Vector(0, 0, -0.812 * 25.4), App.Rotation())
sketch15.addGeometry(Part.LineSegment(App.Vector(-3, 3, 0), App.Vector(-3, -3, 0)), False)
sketch15.addGeometry(Part.LineSegment(App.Vector(-3, -3, 0), App.Vector(3, -3, 0)), False)
sketch15.addGeometry(Part.LineSegment(App.Vector(3, -3, 0), App.Vector(3, 3, 0)), False)
sketch15.addGeometry(Part.LineSegment(App.Vector(3, 3, 0), App.Vector(-3, 3, 0)), False)
sketch15.addConstraint(Sketcher.Constraint("Coincident", 0, 2, 1, 1))
sketch15.addConstraint(Sketcher.Constraint("Coincident", 1, 2, 2, 1))
sketch15.addConstraint(Sketcher.Constraint("Coincident", 2, 2, 3, 1))
sketch15.addConstraint(Sketcher.Constraint("Coincident", 3, 2, 0, 1))
sketch15.addConstraint(Sketcher.Constraint("Vertical", 0))
sketch15.addConstraint(Sketcher.Constraint("Horizontal", 1))
sketch15.addConstraint(Sketcher.Constraint("Vertical", 2))
sketch15.addConstraint(Sketcher.Constraint("Horizontal", 3))
sketch15.addConstraint(Sketcher.Constraint("Symmetric", 0, 2, 2, 2, -1, 1))
sketch15.addConstraint(Sketcher.Constraint("Equal", 3, 0))
sketch15.addConstraint(Sketcher.Constraint("DistanceX", 1, 1, 1, 2, Q("0.25 in")))
pocket11 = doc.addObject("PartDesign::Pocket", "Pocket010")
body3.addObject(pocket11)
pocket11.Profile = sketch15
pocket11.Type = "ThroughAll"
body4 = doc.addObject("PartDesign::Body", "Body003")
doc.recompute()

mirroring = doc.addObject("Part::Mirroring", "Mirroring")
mirroring.Source = body2
mirroring.Base = App.Vector(0, 0, 0)
mirroring.Normal = App.Vector(1, 0, 0)
body4.BaseFeature = mirroring
doc.recompute()
mirroring.Visibility = False

doc.recompute()
